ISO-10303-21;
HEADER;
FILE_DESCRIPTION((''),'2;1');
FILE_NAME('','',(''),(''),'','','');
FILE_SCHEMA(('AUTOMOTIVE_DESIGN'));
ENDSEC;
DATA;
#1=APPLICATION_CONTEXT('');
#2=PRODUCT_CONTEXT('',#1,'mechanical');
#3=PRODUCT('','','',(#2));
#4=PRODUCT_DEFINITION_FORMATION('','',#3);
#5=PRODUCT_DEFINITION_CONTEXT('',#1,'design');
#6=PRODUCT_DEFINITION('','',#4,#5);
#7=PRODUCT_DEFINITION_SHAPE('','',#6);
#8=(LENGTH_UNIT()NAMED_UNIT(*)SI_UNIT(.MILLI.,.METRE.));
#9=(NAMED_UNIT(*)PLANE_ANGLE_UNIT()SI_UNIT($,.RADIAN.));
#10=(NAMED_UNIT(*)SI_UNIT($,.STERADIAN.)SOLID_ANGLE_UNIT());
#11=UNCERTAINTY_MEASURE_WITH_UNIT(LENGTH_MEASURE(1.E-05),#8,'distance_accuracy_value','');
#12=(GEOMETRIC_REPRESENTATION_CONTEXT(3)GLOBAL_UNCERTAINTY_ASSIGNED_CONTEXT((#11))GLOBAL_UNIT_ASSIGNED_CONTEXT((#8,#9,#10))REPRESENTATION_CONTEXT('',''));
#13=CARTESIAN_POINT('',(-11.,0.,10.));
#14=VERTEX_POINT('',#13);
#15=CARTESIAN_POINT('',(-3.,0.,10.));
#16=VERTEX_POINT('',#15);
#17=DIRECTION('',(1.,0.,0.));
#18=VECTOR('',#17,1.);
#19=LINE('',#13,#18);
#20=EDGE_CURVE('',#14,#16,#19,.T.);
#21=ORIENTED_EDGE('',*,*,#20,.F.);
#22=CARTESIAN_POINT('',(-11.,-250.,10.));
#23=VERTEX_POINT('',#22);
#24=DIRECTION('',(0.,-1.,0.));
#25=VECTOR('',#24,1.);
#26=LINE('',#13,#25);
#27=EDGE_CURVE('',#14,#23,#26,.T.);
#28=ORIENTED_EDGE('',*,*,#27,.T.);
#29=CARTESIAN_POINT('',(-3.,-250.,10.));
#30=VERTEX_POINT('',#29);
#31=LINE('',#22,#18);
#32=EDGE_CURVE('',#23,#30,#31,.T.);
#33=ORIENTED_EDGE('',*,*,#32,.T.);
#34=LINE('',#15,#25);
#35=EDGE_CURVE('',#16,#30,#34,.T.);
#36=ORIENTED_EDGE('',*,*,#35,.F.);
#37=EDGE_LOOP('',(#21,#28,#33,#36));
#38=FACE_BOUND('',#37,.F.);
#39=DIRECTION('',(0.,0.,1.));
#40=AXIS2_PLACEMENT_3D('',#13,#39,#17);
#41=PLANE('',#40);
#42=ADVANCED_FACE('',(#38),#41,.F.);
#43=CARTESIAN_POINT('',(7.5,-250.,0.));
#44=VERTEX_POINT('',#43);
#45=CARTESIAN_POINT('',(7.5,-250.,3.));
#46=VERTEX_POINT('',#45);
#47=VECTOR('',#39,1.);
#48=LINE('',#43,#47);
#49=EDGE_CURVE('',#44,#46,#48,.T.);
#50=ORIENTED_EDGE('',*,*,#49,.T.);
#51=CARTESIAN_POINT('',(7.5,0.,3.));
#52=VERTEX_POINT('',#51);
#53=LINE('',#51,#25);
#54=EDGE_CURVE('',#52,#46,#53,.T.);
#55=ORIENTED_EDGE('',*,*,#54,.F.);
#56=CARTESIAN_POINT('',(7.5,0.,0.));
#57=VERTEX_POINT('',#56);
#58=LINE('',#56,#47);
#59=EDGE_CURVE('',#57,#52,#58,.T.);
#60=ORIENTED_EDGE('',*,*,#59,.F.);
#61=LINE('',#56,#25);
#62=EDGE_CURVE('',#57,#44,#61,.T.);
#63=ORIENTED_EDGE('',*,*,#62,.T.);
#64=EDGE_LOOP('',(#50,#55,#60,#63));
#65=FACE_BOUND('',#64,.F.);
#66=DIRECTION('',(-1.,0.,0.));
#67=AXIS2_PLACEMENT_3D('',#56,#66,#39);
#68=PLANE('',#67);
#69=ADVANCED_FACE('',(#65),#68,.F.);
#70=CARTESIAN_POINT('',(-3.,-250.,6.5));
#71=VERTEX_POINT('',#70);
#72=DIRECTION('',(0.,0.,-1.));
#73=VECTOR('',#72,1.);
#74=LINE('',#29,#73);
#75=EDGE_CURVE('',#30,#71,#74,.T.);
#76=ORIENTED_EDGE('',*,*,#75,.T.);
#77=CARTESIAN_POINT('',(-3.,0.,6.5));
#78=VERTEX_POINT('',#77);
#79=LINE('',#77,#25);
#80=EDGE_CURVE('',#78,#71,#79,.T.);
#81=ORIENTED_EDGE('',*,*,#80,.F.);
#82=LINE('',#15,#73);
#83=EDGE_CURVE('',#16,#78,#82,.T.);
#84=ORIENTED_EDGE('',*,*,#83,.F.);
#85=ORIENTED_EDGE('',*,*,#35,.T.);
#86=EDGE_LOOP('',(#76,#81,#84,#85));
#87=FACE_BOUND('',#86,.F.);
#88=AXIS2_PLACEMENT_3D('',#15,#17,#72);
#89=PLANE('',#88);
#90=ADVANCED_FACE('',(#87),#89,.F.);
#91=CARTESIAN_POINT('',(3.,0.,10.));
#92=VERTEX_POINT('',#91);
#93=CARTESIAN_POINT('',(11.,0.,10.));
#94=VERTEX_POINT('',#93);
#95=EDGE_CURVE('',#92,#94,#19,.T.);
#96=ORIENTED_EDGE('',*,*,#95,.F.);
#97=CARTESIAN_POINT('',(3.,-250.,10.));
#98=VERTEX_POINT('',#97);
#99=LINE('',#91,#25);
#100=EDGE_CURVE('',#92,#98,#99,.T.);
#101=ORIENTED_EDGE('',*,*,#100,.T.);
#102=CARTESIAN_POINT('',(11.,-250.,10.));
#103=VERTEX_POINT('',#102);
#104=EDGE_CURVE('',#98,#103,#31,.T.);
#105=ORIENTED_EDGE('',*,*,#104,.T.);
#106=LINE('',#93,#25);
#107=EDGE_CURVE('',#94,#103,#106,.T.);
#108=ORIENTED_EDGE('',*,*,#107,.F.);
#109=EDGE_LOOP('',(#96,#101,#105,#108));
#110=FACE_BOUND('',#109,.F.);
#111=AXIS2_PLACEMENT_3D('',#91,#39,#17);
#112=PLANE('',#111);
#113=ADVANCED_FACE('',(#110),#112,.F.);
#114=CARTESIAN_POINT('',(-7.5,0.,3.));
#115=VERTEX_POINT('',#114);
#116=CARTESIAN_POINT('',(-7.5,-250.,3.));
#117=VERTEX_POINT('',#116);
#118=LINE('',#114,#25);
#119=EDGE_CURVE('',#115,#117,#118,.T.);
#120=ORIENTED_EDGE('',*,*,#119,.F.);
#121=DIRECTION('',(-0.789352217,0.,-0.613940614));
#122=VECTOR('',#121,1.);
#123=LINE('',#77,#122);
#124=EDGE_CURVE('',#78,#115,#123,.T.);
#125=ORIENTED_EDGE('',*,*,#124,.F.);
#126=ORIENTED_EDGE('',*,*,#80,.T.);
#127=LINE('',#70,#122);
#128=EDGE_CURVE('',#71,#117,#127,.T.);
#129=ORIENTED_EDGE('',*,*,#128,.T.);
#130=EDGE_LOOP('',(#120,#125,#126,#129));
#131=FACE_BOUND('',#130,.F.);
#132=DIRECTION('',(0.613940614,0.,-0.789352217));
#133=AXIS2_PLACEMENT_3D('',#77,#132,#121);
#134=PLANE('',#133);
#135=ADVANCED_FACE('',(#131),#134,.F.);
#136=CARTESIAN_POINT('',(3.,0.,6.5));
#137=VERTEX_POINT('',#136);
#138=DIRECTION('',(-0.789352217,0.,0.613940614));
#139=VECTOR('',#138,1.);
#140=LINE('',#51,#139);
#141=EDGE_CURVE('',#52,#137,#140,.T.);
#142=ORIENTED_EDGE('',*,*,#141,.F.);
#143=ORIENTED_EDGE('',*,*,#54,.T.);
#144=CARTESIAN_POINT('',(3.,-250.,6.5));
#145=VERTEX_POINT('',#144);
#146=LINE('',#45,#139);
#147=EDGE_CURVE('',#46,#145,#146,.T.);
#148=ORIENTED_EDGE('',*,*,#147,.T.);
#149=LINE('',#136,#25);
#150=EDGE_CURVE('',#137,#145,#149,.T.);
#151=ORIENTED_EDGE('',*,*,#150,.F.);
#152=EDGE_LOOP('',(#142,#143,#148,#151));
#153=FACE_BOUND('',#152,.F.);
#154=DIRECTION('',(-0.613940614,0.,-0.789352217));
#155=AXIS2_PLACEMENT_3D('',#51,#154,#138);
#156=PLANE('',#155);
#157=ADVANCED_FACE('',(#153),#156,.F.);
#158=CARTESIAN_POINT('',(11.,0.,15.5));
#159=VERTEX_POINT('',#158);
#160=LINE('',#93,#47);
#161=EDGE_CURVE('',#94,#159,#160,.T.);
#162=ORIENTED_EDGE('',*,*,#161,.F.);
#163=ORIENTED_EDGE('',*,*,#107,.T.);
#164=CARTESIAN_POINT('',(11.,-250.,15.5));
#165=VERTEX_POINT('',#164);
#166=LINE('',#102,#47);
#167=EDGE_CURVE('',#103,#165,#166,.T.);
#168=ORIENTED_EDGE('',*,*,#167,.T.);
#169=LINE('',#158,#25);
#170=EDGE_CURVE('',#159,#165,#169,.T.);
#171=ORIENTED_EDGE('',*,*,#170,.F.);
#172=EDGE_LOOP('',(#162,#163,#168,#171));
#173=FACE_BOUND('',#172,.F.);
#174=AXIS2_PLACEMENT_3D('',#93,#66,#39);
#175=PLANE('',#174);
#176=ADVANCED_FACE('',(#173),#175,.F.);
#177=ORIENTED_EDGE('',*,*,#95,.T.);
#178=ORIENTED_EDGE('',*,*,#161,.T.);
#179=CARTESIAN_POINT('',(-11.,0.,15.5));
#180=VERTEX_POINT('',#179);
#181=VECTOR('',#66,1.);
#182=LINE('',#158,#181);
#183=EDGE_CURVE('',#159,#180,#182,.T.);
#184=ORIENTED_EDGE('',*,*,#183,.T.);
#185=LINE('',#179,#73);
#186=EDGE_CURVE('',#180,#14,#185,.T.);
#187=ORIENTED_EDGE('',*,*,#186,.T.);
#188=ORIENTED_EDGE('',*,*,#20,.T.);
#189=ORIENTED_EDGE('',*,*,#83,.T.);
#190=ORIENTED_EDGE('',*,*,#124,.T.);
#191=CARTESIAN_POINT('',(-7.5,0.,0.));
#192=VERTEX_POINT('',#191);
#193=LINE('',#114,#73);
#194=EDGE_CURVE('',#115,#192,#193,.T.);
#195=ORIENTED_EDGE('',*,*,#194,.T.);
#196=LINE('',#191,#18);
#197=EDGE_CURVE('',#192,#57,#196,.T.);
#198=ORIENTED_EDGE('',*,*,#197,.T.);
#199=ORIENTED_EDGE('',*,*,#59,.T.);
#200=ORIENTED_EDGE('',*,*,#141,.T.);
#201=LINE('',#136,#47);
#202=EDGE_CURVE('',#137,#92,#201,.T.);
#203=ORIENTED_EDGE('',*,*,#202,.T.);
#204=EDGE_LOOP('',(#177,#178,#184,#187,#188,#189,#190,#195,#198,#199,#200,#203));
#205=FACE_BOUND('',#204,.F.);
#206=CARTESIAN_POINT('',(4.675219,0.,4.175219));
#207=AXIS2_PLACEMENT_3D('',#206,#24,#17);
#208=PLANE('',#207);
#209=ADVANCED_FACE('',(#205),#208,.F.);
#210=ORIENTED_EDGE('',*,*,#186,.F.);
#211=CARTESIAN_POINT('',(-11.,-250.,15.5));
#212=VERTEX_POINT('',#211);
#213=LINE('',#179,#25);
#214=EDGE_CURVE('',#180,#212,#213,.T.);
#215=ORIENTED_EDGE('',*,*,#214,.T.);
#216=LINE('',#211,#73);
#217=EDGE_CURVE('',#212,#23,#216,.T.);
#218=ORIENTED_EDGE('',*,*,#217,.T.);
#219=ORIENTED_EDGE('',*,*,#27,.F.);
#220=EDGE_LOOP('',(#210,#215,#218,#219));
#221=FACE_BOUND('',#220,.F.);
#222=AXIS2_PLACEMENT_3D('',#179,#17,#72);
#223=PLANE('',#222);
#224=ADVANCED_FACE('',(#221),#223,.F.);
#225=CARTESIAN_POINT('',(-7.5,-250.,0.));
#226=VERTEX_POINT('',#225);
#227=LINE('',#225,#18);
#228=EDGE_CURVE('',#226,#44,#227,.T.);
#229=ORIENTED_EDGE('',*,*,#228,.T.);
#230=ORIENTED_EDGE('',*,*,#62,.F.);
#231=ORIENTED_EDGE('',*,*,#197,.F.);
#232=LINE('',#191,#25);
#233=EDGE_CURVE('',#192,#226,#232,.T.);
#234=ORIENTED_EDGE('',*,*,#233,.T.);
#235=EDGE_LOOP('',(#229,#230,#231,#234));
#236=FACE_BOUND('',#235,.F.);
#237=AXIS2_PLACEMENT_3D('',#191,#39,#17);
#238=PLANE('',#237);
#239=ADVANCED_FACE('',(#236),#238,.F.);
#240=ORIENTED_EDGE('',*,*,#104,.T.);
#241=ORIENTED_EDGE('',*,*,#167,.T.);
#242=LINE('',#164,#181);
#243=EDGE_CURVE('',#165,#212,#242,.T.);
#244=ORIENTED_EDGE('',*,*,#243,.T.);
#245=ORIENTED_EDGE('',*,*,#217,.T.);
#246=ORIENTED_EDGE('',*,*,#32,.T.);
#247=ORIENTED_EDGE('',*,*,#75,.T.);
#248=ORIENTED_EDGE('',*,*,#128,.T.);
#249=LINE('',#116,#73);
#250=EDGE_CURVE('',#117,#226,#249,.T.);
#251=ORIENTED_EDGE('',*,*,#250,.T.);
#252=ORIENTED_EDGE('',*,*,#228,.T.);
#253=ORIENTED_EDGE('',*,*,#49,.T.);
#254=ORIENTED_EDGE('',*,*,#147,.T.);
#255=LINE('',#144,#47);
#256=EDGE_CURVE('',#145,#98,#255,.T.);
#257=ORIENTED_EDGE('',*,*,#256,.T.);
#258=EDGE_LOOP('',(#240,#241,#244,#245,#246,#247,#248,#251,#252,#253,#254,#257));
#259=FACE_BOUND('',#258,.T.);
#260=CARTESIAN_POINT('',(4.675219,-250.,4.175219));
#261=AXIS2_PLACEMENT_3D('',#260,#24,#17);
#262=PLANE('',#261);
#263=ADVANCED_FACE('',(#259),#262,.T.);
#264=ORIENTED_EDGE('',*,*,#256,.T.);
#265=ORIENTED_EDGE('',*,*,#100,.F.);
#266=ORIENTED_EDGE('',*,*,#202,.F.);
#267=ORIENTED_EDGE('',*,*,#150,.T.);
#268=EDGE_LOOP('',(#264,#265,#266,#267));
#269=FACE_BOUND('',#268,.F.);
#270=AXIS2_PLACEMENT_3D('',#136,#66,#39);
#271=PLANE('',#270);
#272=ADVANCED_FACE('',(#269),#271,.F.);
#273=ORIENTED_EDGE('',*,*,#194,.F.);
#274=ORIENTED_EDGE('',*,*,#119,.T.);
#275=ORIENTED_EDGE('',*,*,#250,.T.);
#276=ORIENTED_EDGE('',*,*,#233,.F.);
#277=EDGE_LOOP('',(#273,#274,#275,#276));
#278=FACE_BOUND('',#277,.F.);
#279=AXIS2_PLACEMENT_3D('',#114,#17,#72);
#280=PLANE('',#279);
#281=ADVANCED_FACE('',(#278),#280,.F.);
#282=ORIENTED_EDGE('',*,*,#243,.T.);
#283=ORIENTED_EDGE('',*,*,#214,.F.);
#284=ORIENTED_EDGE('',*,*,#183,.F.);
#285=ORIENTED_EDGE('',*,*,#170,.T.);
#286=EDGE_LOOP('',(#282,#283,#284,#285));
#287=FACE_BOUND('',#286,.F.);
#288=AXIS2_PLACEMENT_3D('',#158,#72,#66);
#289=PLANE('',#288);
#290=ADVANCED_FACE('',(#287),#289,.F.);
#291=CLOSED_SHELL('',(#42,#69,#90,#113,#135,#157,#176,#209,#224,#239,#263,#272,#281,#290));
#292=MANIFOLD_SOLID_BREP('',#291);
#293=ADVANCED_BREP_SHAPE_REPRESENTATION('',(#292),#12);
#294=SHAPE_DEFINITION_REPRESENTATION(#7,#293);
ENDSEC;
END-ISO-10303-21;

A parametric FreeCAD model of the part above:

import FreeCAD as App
import Part
import Sketcher
from FreeCAD import Vector


def add_polygon(sketch, points):
    """Adds a closed chain of lines whose ends are joined by coincident constraints."""
    first, n = sketch.GeometryCount, len(points)
    for a, b in zip(points, points[1:] + points[:1]):
        sketch.addGeometry(Part.LineSegment(App.Vector(*a, 0), App.Vector(*b, 0)), False)
    for i in range(n):
        sketch.addConstraint(Sketcher.Constraint("Coincident", first + i, 2, first + (i + 1) % n, 1))

doc = App.newDocument("Part")
params = doc.addObject("Spreadsheet::Sheet", "Params")
for row, (alias, value) in enumerate([
    ("sketch1_width", "8 mm"),
    ("sketch1_width2", "22 mm"),
    ("sketch1_width3", "15 mm"),
    ("sketch1_height", "3 mm"),
    ("sketch1_height2", "3.5 mm"),
    ("pad1_length", "250 mm"),
], start=1):
    params.set(f"A{row}", alias)
    params.set(f"B{row}", "=" + value)
    params.setAlias(f"B{row}", alias)

body = doc.addObject("PartDesign::Body", "Body")

# Sketch on XZ plane
sketch1 = body.newObject("Sketcher::SketchObject", "Sketch")
sketch1.AttachmentSupport = (doc.getObject("XZ_Plane"), [""])
sketch1.MapMode = "FlatFace"
add_polygon(sketch1, [(7.5, 3), (3, 6.5), (3, 10), (11, 10), (11, 15.5), (-11, 15.5), (-11, 10), (-3, 10), (-3, 6.5), (-7.5, 3), (-7.5, 0), (7.5, 0)])  # lines 0-11
sketch1.addConstraint(Sketcher.Constraint("Vertical", 1))
sketch1.addConstraint(Sketcher.Constraint("Horizontal", 2))
sketch1.addConstraint(Sketcher.Constraint("Vertical", 3))
sketch1.addConstraint(Sketcher.Constraint("Horizontal", 4))
sketch1.addConstraint(Sketcher.Constraint("Vertical", 5))
sketch1.addConstraint(Sketcher.Constraint("Horizontal", 6))
sketch1.addConstraint(Sketcher.Constraint("Vertical", 7))
sketch1.addConstraint(Sketcher.Constraint("Vertical", 9))
sketch1.addConstraint(Sketcher.Constraint("Horizontal", 10))
sketch1.addConstraint(Sketcher.Constraint("Vertical", 11))
sketch1.addConstraint(Sketcher.Constraint("Symmetric", 9, 2, 10, 2, -1, 1))
sketch1.addConstraint(Sketcher.Constraint("Symmetric", 2, 2, 5, 2, -2))
sketch1.addConstraint(Sketcher.Constraint("Symmetric", 0, 2, 7, 2, -2))
sketch1.addConstraint(Sketcher.Constraint("Horizontal", 8, 2, 11, 2))
sketch1.addConstraint(Sketcher.Constraint("DistanceX", 2, 1, 2, 2, 8.0))
sketch1.addConstraint(Sketcher.Constraint("DistanceX", 4, 2, 4, 1, 22.0))
sketch1.addConstraint(Sketcher.Constraint("DistanceX", 10, 1, 10, 2, 15.0))
sketch1.addConstraint(Sketcher.Constraint("DistanceY", 9, 2, 9, 1, 3.0))
sketch1.addConstraint(Sketcher.Constraint("DistanceY", 1, 1, 1, 2, 3.5))
sketch1.addConstraint(Sketcher.Constraint("DistanceY", 3, 1, 3, 2, 5.5))
sketch1.addConstraint(Sketcher.Constraint("DistanceY", -1, 1, 1, 2, 10.0))
sketch1.setExpression("Constraints[26]", "Params.sketch1_width")
sketch1.setExpression("Constraints[27]", "Params.sketch1_width2")
sketch1.setExpression("Constraints[28]", "Params.sketch1_width3")
sketch1.setExpression("Constraints[29]", "Params.sketch1_height")
sketch1.setExpression("Constraints[30]", "Params.sketch1_height2")
pad1 = body.newObject("PartDesign::Pad", "Pad")
pad1.Profile = sketch1
pad1.setExpression("Length", "Params.pad1_length")

doc.recompute()
